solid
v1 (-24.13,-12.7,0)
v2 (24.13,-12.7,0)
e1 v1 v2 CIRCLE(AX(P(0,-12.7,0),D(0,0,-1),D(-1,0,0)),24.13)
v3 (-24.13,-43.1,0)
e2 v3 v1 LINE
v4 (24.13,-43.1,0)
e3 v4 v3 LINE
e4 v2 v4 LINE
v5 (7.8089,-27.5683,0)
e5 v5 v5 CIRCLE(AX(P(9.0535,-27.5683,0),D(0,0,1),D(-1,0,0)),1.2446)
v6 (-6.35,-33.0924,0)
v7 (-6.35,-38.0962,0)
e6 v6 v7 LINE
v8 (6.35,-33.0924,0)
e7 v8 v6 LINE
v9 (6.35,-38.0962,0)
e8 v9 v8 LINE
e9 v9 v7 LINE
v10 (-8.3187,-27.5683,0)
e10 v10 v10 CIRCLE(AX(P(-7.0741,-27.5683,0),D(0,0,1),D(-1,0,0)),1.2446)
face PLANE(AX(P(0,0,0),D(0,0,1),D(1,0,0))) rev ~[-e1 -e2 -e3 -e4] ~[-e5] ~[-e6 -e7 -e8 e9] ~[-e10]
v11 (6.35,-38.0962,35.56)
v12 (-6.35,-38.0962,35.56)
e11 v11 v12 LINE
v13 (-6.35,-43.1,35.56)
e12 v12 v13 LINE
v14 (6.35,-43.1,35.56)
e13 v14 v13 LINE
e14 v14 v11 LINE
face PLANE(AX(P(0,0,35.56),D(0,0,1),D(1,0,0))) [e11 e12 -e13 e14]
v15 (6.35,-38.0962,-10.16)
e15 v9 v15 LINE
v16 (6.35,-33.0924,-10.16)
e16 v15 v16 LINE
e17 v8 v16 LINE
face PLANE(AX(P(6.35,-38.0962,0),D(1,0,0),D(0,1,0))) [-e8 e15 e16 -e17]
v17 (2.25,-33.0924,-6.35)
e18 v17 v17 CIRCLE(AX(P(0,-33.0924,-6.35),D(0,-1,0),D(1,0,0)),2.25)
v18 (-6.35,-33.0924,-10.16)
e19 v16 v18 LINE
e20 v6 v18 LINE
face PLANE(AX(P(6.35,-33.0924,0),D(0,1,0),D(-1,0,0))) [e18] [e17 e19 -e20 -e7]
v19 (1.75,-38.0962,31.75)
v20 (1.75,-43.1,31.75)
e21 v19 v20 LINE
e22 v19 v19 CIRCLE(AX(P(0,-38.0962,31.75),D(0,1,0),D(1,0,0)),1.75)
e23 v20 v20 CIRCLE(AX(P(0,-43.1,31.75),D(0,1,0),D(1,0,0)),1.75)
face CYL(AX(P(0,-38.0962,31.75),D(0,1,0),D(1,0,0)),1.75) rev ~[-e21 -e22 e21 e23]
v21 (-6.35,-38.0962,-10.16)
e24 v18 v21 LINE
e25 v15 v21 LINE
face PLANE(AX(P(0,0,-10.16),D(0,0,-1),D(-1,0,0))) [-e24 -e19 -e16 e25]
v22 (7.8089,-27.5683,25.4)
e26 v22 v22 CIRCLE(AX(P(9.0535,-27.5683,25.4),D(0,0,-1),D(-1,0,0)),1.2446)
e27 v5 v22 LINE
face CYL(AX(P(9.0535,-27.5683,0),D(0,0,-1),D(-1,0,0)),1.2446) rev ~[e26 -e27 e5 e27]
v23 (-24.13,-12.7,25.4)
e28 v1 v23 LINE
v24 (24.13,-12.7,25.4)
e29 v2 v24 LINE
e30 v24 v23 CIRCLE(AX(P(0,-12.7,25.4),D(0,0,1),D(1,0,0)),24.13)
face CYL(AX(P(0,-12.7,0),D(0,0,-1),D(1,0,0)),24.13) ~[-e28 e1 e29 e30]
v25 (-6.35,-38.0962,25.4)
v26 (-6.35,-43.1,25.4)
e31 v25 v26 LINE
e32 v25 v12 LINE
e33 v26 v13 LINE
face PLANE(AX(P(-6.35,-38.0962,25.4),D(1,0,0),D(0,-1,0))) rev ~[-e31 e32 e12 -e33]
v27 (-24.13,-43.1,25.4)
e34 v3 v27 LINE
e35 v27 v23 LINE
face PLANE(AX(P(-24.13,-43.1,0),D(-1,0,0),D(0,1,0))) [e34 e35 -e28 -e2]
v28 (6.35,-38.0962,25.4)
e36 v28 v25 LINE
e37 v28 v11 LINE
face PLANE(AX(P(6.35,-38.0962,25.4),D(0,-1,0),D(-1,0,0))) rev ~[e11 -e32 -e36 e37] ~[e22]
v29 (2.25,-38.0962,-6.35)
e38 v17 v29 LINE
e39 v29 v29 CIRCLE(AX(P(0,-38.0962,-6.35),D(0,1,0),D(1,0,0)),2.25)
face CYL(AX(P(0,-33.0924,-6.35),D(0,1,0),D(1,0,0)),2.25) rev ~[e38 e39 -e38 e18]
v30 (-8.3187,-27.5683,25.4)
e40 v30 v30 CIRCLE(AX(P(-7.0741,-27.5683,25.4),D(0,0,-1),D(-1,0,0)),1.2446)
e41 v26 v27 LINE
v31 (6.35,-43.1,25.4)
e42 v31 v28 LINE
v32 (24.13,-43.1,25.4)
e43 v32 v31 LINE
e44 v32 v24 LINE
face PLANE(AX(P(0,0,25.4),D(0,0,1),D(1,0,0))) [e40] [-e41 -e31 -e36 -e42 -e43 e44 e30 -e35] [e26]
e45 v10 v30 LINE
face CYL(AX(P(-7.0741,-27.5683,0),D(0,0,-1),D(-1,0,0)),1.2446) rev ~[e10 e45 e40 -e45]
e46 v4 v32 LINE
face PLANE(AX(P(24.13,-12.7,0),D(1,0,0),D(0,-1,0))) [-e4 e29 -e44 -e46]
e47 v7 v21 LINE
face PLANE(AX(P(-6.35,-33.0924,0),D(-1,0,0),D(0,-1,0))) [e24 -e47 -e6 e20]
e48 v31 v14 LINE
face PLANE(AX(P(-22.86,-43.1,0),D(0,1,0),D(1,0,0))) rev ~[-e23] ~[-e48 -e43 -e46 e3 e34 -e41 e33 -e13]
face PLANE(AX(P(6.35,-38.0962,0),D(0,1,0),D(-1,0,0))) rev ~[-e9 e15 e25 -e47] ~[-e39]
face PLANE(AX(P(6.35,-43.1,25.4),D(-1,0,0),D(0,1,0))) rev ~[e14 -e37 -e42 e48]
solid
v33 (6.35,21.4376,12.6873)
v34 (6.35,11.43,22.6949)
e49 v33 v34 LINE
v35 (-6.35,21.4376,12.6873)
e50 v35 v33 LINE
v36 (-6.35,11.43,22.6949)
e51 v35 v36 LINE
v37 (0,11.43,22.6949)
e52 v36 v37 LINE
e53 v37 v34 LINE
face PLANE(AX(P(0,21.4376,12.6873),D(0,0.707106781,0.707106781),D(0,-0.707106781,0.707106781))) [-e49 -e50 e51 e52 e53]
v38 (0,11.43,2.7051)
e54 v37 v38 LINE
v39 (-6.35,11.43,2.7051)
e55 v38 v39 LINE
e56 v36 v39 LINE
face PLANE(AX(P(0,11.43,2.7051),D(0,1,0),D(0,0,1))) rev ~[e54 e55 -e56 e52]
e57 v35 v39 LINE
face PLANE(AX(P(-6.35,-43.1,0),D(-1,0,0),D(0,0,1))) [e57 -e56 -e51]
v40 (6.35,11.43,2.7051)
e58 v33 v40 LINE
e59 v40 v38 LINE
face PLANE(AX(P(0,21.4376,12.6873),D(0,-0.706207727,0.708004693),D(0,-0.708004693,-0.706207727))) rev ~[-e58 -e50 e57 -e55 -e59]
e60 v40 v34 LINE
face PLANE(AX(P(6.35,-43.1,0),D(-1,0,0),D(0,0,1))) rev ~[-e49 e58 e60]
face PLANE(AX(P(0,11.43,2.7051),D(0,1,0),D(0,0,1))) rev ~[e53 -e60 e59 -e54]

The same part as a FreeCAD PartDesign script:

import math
import FreeCAD as App
import Part
import Sketcher
from FreeCAD import Vector
Q = App.Units.Quantity


def add_polygon(sketch, points):
    """Adds a closed chain of lines whose ends are joined by coincident constraints."""
    first, n = sketch.GeometryCount, len(points)
    for a, b in zip(points, points[1:] + points[:1]):
        sketch.addGeometry(Part.LineSegment(App.Vector(*a, 0), App.Vector(*b, 0)), False)
    for i in range(n):
        sketch.addConstraint(Sketcher.Constraint("Coincident", first + i, 2, first + (i + 1) % n, 1))

doc = App.newDocument("Part")
body = doc.addObject("PartDesign::Body", "Body")
body.AllowCompound = True

sketch1 = doc.addObject("Sketcher::SketchObject", "Sketch")
body.addObject(sketch1)
sketch1.AttachmentSupport = (doc.XY_Plane, [""])
sketch1.MapMode = "FlatFace"
sketch1.addGeometry(Part.LineSegment(Vector(24, -43, 0), Vector(24, -13, 0)), False)
sketch1.addGeometry(Part.ArcOfCircle(Part.Circle(Vector(0, -13, 0), Vector(0, 0, 1), 24), math.radians(0), math.radians(180)), False)
sketch1.addGeometry(Part.LineSegment(Vector(-24, -13, 0), Vector(-24, -43, 0)), False)
sketch1.addGeometry(Part.LineSegment(Vector(-24, -43, 0), Vector(24, -43, 0)), False)
sketch1.addConstraint(Sketcher.Constraint("Tangent", 0, 2, 1, 1))
sketch1.addConstraint(Sketcher.Constraint("Tangent", 1, 2, 2, 1))
sketch1.addConstraint(Sketcher.Constraint("Coincident", 2, 2, 3, 1))
sketch1.addConstraint(Sketcher.Constraint("Coincident", 3, 2, 0, 1))
sketch1.addConstraint(Sketcher.Constraint("Vertical", 0))
sketch1.addConstraint(Sketcher.Constraint("Vertical", 2))
sketch1.addConstraint(Sketcher.Constraint("Horizontal", 3))
sketch1.addConstraint(Sketcher.Constraint("PointOnObject", 1, 3, -2))
sketch1.addConstraint(Sketcher.Constraint("Radius", 1, Q("0.95 in")))
sketch1.addConstraint(Sketcher.Constraint("DistanceY", 1, 3, -1, 1, Q("0.5 in")))
sketch1.addConstraint(Sketcher.Constraint("DistanceY", 0, 1, 0, 2, 30.4))
pad1 = doc.addObject("PartDesign::Pad", "Pad")
body.addObject(pad1)
pad1.Profile = sketch1
pad1.Length = Q("1 in")

sketch2 = doc.addObject("Sketcher::SketchObject", "Sketch001")
body.addObject(sketch2)
sketch2.AttachmentSupport = (doc.XY_Plane, [""])
sketch2.MapMode = "FlatFace"
add_polygon(sketch2, [(6, -38), (-6, -38), (-6, -33), (6, -33)])
sketch2.addConstraint(Sketcher.Constraint("Horizontal", 0))
sketch2.addConstraint(Sketcher.Constraint("Vertical", 1))
sketch2.addConstraint(Sketcher.Constraint("Horizontal", 2))
sketch2.addConstraint(Sketcher.Constraint("Vertical", 3))
sketch2.addConstraint(Sketcher.Constraint("DistanceY", 1, 1, 1, 2, Q("0.197 in")))
sketch2.addConstraint(Sketcher.Constraint("DistanceX", 0, 2, 0, 1, Q("0.5 in")))
sketch2.addConstraint(Sketcher.Constraint("DistanceX", 0, 2, -1, 1, Q("0.25 in")))
sketch2.addConstraint(Sketcher.Constraint("DistanceY", 0, 2, -1, 1, 38.0962))
pad2 = doc.addObject("PartDesign::Pad", "Pad001")
body.addObject(pad2)
pad2.Profile = sketch2
pad2.Length = Q("0.4 in")
pad2.Reversed = True

sketch3 = doc.addObject("Sketcher::SketchObject", "Sketch002")
body.addObject(sketch3)
sketch3.AttachmentSupport = (doc.XZ_Plane, [""])
sketch3.MapMode = "FlatFace"
sketch3.AttachmentOffset = App.Placement(Vector(0, 0, 33.0924), App.Rotation())
sketch3.addGeometry(Part.Circle(Vector(0, -6.3, 0), Vector(0, 0, 1), 2.2), False)
sketch3.addConstraint(Sketcher.Constraint("PointOnObject", 0, 3, -2))
sketch3.addConstraint(Sketcher.Constraint("Diameter", 0, 4.5))
sketch3.addConstraint(Sketcher.Constraint("DistanceY", 0, 3, -1, 1, Q("0.25 in")))
pocket1 = doc.addObject("PartDesign::Pocket", "Pocket")
body.addObject(pocket1)
pocket1.Profile = sketch3
pocket1.Length = Q("0.4 in")
pocket1.Reversed = True

sketch4 = doc.addObject("Sketcher::SketchObject", "Sketch003")
body.addObject(sketch4)
sketch4.AttachmentSupport = (doc.XY_Plane, [""])
sketch4.MapMode = "FlatFace"
sketch4.AttachmentOffset = App.Placement(Vector(0, 0, 1 * 25.4), App.Rotation())
add_polygon(sketch4, [(-6, -43), (6, -43), (6, -38), (-6, -38)])
sketch4.addConstraint(Sketcher.Constraint("Horizontal", 0))
sketch4.addConstraint(Sketcher.Constraint("Vertical", 1))
sketch4.addConstraint(Sketcher.Constraint("Horizontal", 2))
sketch4.addConstraint(Sketcher.Constraint("Vertical", 3))
sketch4.addConstraint(Sketcher.Constraint("DistanceX", 0, 1, 0, 2, Q("0.5 in")))
sketch4.addConstraint(Sketcher.Constraint("DistanceY", 1, 1, 1, 2, Q("0.197 in")))
sketch4.addConstraint(Sketcher.Constraint("DistanceX", -1, 1, 0, 2, Q("0.25 in")))
sketch4.addConstraint(Sketcher.Constraint("DistanceY", 0, 2, -1, 1, 43.1))
pad3 = doc.addObject("PartDesign::Pad", "Pad002")
body.addObject(pad3)
pad3.Profile = sketch4
pad3.Length = Q("0.4 in")

sketch5 = doc.addObject("Sketcher::SketchObject", "Sketch004")
body.addObject(sketch5)
sketch5.AttachmentSupport = (doc.XZ_Plane, [""])
sketch5.MapMode = "FlatFace"
sketch5.AttachmentOffset = App.Placement(Vector(0, 0, 38.0962), App.Rotation())
sketch5.addGeometry(Part.Circle(Vector(0, 31.8, 0), Vector(0, 0, 1), 1.8), False)
sketch5.addConstraint(Sketcher.Constraint("PointOnObject", 0, 3, -2))
sketch5.addConstraint(Sketcher.Constraint("Diameter", 0, Q("0.1378 in")))
sketch5.addConstraint(Sketcher.Constraint("DistanceY", -1, 1, 0, 3, Q("1.25 in")))
pocket2 = doc.addObject("PartDesign::Pocket", "Pocket001")
body.addObject(pocket2)
pocket2.Profile = sketch5
pocket2.Length = Q("0.4 in")
pocket2.Reversed = True

sketch6 = doc.addObject("Sketcher::SketchObject", "Sketch005")
body.addObject(sketch6)
sketch6.AttachmentSupport = (doc.YZ_Plane, [""])
sketch6.MapMode = "FlatFace"
add_polygon(sketch6, [(21, 13), (11, 3), (11, 23)])
sketch6.addConstraint(Sketcher.Constraint("Vertical", 1))
sketch6.addConstraint(Sketcher.Constraint("DistanceY", 1, 1, 1, 2, Q("0.787 in")))
sketch6.addConstraint(Sketcher.Constraint("Angle", 2, Q("-45 deg")))
sketch6.addConstraint(Sketcher.Constraint("DistanceX", 0, 2, 2, 2, Q("0.394 in")))
sketch6.addConstraint(Sketcher.Constraint("DistanceY", -1, 1, 0, 2, Q("0.1065 in")))
sketch6.addConstraint(Sketcher.Constraint("DistanceX", -1, 1, 0, 2, Q("0.45 in")))
pad4 = doc.addObject("PartDesign::Pad", "Pad003")
body.addObject(pad4)
pad4.Profile = sketch6
pad4.Length = Q("0.5 in")
pad4.Midplane = True

sketch7 = doc.addObject("Sketcher::SketchObject", "Sketch006")
body.addObject(sketch7)
sketch7.AttachmentSupport = (doc.XY_Plane, [""])
sketch7.MapMode = "FlatFace"
sketch7.addGeometry(Part.Circle(Vector(9.1, -27.6, 0), Vector(0, 0, 1), 1.2), False)
sketch7.addGeometry(Part.Circle(Vector(-7.1, -27.6, 0), Vector(0, 0, 1), 1.2), False)
sketch7.addConstraint(Sketcher.Constraint("Equal", 0, 1))
sketch7.addConstraint(Sketcher.Constraint("Horizontal", 0, 3, 1, 3))
sketch7.addConstraint(Sketcher.Constraint("Diameter", 0, Q("0.098 in")))
sketch7.addConstraint(Sketcher.Constraint("DistanceX", 1, 3, -1, 1, Q("0.2785 in")))
sketch7.addConstraint(Sketcher.Constraint("DistanceX", -1, 1, 0, 3, 9.0535))
sketch7.addConstraint(Sketcher.Constraint("DistanceY", 0, 3, -1, 1, 27.5683))
pocket3 = doc.addObject("PartDesign::Pocket", "Pocket002")
body.addObject(pocket3)
pocket3.Profile = sketch7
pocket3.Length = Q("1 in")
pocket3.Reversed = True

doc.recompute()
